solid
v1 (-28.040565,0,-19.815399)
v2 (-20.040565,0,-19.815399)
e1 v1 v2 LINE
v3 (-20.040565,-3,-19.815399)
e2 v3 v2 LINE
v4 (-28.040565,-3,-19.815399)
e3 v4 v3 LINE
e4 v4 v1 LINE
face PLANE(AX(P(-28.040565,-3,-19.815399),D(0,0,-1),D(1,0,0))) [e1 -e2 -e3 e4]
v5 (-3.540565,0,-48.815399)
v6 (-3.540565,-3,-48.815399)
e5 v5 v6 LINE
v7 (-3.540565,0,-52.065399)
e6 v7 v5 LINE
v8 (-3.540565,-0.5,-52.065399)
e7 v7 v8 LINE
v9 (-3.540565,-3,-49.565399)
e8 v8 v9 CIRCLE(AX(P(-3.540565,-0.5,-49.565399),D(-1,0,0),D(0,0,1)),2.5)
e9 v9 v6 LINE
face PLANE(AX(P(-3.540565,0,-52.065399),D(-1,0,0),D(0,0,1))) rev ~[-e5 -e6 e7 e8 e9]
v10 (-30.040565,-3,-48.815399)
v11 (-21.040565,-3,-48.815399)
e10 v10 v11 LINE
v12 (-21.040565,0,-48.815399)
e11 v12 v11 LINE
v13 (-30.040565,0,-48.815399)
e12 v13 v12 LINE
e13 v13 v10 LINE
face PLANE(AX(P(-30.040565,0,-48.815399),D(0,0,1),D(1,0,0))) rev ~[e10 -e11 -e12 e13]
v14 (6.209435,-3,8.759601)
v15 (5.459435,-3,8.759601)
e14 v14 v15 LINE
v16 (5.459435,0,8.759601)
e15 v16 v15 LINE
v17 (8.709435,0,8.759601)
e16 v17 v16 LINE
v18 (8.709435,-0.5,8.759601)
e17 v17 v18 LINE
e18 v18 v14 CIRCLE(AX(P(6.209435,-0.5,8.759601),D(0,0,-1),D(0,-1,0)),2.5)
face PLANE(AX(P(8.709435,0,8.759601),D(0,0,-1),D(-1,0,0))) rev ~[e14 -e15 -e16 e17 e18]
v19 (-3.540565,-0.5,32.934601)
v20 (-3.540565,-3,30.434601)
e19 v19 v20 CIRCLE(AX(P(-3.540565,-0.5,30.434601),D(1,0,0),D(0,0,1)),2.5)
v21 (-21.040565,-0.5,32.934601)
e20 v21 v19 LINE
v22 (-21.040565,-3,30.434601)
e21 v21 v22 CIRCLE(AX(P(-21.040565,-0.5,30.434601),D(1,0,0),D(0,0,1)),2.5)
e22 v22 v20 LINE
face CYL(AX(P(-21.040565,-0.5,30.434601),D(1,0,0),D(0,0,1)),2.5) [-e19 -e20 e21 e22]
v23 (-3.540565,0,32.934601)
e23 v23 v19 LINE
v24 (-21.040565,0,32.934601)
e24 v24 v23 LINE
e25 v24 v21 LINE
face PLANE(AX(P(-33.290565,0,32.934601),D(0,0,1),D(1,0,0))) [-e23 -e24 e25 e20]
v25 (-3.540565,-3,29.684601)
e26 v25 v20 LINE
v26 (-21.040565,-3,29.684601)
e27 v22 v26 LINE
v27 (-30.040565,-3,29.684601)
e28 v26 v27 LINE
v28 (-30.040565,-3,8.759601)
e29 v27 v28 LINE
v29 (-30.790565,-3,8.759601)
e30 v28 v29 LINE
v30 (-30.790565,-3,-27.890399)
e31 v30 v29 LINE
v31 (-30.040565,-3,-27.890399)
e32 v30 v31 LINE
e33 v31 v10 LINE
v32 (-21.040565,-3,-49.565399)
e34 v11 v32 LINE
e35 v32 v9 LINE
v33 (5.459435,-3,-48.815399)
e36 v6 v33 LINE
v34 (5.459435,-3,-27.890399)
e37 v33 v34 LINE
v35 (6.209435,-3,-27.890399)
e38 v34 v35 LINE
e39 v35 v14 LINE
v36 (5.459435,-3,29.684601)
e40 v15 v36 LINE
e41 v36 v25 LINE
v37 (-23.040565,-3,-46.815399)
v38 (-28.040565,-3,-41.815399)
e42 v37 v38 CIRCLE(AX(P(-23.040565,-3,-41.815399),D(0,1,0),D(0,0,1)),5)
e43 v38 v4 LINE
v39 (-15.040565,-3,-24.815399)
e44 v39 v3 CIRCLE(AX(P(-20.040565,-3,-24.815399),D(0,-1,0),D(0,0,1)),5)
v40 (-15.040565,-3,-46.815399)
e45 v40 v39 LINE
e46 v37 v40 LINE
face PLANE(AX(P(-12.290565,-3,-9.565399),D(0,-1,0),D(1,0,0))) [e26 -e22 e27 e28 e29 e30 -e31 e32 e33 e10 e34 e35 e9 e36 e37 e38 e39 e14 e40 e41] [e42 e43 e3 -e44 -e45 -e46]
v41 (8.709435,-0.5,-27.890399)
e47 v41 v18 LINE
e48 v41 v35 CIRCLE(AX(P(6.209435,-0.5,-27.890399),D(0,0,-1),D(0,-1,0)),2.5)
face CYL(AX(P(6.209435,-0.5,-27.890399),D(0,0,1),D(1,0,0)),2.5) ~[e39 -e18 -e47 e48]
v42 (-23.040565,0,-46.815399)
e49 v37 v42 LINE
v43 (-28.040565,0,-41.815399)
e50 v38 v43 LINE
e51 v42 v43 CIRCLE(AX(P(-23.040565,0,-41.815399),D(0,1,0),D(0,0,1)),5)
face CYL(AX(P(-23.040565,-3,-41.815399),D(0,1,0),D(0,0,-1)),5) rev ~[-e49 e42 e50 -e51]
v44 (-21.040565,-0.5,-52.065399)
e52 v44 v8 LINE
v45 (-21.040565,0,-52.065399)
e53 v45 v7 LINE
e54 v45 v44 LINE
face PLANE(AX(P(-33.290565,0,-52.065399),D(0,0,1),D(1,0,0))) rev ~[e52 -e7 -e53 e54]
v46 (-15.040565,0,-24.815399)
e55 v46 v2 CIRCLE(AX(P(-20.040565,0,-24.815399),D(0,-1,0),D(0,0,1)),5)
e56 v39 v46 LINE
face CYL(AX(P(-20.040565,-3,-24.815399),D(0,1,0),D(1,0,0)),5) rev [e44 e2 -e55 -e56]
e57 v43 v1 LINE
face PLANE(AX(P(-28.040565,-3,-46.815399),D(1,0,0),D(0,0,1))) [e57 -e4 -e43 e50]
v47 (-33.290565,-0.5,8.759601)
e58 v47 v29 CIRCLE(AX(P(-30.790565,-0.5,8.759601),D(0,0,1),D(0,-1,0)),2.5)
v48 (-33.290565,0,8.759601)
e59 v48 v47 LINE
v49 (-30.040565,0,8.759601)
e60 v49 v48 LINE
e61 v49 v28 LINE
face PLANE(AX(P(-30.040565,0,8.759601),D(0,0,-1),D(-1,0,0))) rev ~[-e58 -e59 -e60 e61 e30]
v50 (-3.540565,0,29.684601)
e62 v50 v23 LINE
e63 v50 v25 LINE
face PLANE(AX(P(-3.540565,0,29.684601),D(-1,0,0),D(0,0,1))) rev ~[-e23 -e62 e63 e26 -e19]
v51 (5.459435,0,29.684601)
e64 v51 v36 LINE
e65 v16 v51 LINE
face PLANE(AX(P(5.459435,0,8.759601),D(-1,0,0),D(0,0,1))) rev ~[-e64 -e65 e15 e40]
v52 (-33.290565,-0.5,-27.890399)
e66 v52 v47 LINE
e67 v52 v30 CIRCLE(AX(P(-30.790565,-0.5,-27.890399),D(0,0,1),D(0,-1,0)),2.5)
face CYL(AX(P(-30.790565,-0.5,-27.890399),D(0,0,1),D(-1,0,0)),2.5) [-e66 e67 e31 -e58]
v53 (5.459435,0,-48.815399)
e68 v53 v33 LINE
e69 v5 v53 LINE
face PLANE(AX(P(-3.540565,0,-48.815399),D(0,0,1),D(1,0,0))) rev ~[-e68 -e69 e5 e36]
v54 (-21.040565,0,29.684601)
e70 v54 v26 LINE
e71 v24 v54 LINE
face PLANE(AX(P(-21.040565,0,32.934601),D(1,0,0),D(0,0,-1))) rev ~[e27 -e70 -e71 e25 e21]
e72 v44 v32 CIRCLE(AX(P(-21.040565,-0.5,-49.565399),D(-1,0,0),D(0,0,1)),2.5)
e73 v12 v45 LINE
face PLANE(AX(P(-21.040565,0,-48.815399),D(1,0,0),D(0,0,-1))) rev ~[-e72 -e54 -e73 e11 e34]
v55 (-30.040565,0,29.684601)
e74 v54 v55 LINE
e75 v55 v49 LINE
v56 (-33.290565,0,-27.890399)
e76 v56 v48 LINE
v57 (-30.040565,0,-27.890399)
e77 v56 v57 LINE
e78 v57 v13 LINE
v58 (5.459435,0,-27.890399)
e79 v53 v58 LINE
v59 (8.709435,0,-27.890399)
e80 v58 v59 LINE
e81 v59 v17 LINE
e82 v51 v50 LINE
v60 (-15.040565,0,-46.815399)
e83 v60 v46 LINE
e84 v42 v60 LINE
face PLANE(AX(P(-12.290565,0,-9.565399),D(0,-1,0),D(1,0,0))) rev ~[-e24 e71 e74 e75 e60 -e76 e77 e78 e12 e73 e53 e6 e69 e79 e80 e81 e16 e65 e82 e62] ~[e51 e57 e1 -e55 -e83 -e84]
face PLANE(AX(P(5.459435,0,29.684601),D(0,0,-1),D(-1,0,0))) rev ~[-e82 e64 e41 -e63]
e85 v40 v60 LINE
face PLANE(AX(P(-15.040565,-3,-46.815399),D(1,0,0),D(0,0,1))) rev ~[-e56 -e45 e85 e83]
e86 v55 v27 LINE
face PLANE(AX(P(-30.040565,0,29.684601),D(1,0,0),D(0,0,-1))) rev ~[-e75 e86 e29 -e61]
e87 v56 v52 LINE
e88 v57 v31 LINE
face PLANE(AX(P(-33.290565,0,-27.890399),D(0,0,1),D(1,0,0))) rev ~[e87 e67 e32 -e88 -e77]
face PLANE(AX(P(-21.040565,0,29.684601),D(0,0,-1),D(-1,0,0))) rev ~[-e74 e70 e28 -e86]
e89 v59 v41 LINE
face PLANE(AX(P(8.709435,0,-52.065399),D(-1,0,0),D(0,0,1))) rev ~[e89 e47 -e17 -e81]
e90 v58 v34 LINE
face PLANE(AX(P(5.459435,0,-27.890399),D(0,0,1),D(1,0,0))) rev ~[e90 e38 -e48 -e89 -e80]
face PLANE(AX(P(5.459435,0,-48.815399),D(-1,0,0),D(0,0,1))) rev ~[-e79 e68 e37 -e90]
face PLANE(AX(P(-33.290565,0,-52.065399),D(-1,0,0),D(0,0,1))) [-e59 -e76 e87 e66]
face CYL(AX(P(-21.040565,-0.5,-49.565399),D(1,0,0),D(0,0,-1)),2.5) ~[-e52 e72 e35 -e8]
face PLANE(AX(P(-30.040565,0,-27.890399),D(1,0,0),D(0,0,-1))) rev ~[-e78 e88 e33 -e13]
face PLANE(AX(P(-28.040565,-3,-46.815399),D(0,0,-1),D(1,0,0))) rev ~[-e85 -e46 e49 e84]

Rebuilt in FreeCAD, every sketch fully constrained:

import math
import FreeCAD as App
import Part
import Sketcher


def edges_at(feature, points):
    """Names of the edges that pass closest to the given points."""
    edges = feature.Shape.Edges
    near = lambda p: min(range(len(edges)), key=lambda i: edges[i].distToShape(Part.Vertex(*p))[0])
    return sorted({f"Edge{near(p) + 1}" for p in points})

doc = App.newDocument("Part")
body = doc.addObject("PartDesign::Body", "Body")

sketch1 = body.newObject("Sketcher::SketchObject", "Sketch")
sketch1.AttachmentSupport = (doc.getObject("XZ_Plane"), [""])
sketch1.MapMode = "FlatFace"
sketch1.addGeometry([
    Part.LineSegment(App.Vector(-33, 33, 0), App.Vector(-33, -52, 0)),
    Part.LineSegment(App.Vector(-33, -52, 0), App.Vector(9, -52, 0)),
    Part.LineSegment(App.Vector(9, -52, 0), App.Vector(9, 33, 0)),
    Part.LineSegment(App.Vector(9, 33, 0), App.Vector(-33, 33, 0)),
], False)
sketch1.addConstraint([
    Sketcher.Constraint("Coincident", 0, 2, 1, 1),
    Sketcher.Constraint("Coincident", 1, 2, 2, 1),
    Sketcher.Constraint("Coincident", 2, 2, 3, 1),
    Sketcher.Constraint("Coincident", 3, 2, 0, 1),
    Sketcher.Constraint("Vertical", 0),
    Sketcher.Constraint("Horizontal", 1),
    Sketcher.Constraint("Vertical", 2),
    Sketcher.Constraint("Horizontal", 3),
    Sketcher.Constraint("DistanceX", 1, 1, 1, 2, 42.0),
    Sketcher.Constraint("DistanceY", 0, 2, 0, 1, 85.0),
    Sketcher.Constraint("DistanceY", 0, 2, -1, 1, 52.065399),
    Sketcher.Constraint("DistanceX", 0, 2, -1, 1, 33.290565),
])
pad1 = body.newObject("PartDesign::Pad", "Pad")
pad1.Profile = sketch1
pad1.Length = 3
doc.recompute()

fillet = body.newObject("PartDesign::Fillet", "Fillet")
fillet.Base = (pad1, edges_at(pad1, [
    (-33.291, -1.5, 32.935),
    (8.709, -1.5, 32.935),
    (8.709, -1.5, -52.065),
    (-33.291, -1.5, -52.065),
]))
fillet.Radius = 3

sketch2 = body.newObject("Sketcher::SketchObject", "Sketch001")
sketch2.AttachmentSupport = (doc.getObject("XZ_Plane"), [""])
sketch2.MapMode = "FlatFace"
sketch2.addGeometry([
    Part.LineSegment(App.Vector(5.5, 8.8, 0), App.Vector(5.5, 29.7, 0)),
    Part.LineSegment(App.Vector(5.5, 29.7, 0), App.Vector(-3.5, 29.7, 0)),
    Part.LineSegment(App.Vector(-3.5, 29.7, 0), App.Vector(-3.5, 32.9, 0)),
    Part.LineSegment(App.Vector(-3.5, 32.9, 0), App.Vector(5.7, 32.9, 0)),
    Part.ArcOfCircle(Part.Circle(App.Vector(5.7, 29.9, 0), App.Vector(0, 0, 1), 3), math.radians(0), math.radians(90)),
    Part.LineSegment(App.Vector(8.7, 29.9, 0), App.Vector(8.7, 8.8, 0)),
    Part.LineSegment(App.Vector(8.7, 8.8, 0), App.Vector(5.5, 8.8, 0)),
    Part.LineSegment(App.Vector(-21, 32.9, 0), App.Vector(-21, 29.7, 0)),
    Part.LineSegment(App.Vector(-21, 29.7, 0), App.Vector(-30, 29.7, 0)),
    Part.LineSegment(App.Vector(-30, 29.7, 0), App.Vector(-30, 8.8, 0)),
    Part.LineSegment(App.Vector(-30, 8.8, 0), App.Vector(-33.3, 8.8, 0)),
    Part.LineSegment(App.Vector(-33.3, 8.8, 0), App.Vector(-33.3, 29.9, 0)),
    Part.ArcOfCircle(Part.Circle(App.Vector(-30.3, 29.9, 0), App.Vector(0, 0, 1), 3), math.radians(90), math.radians(180)),
    Part.LineSegment(App.Vector(-30.3, 32.9, 0), App.Vector(-21, 32.9, 0)),
    Part.LineSegment(App.Vector(-33.3, -27.9, 0), App.Vector(-30, -27.9, 0)),
    Part.LineSegment(App.Vector(-30, -27.9, 0), App.Vector(-30, -48.8, 0)),
    Part.LineSegment(App.Vector(-30, -48.8, 0), App.Vector(-21, -48.8, 0)),
    Part.LineSegment(App.Vector(-21, -48.8, 0), App.Vector(-21, -52.1, 0)),
    Part.LineSegment(App.Vector(-21, -52.1, 0), App.Vector(-30.3, -52.1, 0)),
    Part.ArcOfCircle(Part.Circle(App.Vector(-30.3, -49.1, 0), App.Vector(0, 0, 1), 3), math.radians(-180), math.radians(-90)),
    Part.LineSegment(App.Vector(-33.3, -49.1, 0), App.Vector(-33.3, -27.9, 0)),
    Part.LineSegment(App.Vector(5.5, -48.8, 0), App.Vector(5.5, -27.9, 0)),
    Part.LineSegment(App.Vector(5.5, -27.9, 0), App.Vector(8.7, -27.9, 0)),
    Part.LineSegment(App.Vector(8.7, -27.9, 0), App.Vector(8.7, -49.1, 0)),
    Part.ArcOfCircle(Part.Circle(App.Vector(5.7, -49.1, 0), App.Vector(0, 0, 1), 3), math.radians(-90), math.radians(0)),
    Part.LineSegment(App.Vector(5.7, -52.1, 0), App.Vector(-3.5, -52.1, 0)),
    Part.LineSegment(App.Vector(-3.5, -52.1, 0), App.Vector(-3.5, -48.8, 0)),
    Part.LineSegment(App.Vector(-3.5, -48.8, 0), App.Vector(5.5, -48.8, 0)),
], False)
sketch2.addConstraint([
    Sketcher.Constraint("Coincident", 0, 2, 1, 1),
    Sketcher.Constraint("Coincident", 1, 2, 2, 1),
    Sketcher.Constraint("Coincident", 2, 2, 3, 1),
    Sketcher.Constraint("Tangent", 3, 2, 4, 2),
    Sketcher.Constraint("Tangent", 4, 1, 5, 1),
    Sketcher.Constraint("Coincident", 5, 2, 6, 1),
    Sketcher.Constraint("Coincident", 6, 2, 0, 1),
    Sketcher.Constraint("Coincident", 7, 2, 8, 1),
    Sketcher.Constraint("Coincident", 8, 2, 9, 1),
    Sketcher.Constraint("Coincident", 9, 2, 10, 1),
    Sketcher.Constraint("Coincident", 10, 2, 11, 1),
    Sketcher.Constraint("Tangent", 11, 2, 12, 2),
    Sketcher.Constraint("Tangent", 12, 1, 13, 1),
    Sketcher.Constraint("Coincident", 13, 2, 7, 1),
    Sketcher.Constraint("Coincident", 14, 2, 15, 1),
    Sketcher.Constraint("Coincident", 15, 2, 16, 1),
    Sketcher.Constraint("Coincident", 16, 2, 17, 1),
    Sketcher.Constraint("Coincident", 17, 2, 18, 1),
    Sketcher.Constraint("Tangent", 18, 2, 19, 2),
    Sketcher.Constraint("Tangent", 19, 1, 20, 1),
    Sketcher.Constraint("Coincident", 20, 2, 14, 1),
    Sketcher.Constraint("Coincident", 21, 2, 22, 1),
    Sketcher.Constraint("Coincident", 22, 2, 23, 1),
    Sketcher.Constraint("Tangent", 23, 2, 24, 2),
    Sketcher.Constraint("Tangent", 24, 1, 25, 1),
    Sketcher.Constraint("Coincident", 25, 2, 26, 1),
    Sketcher.Constraint("Coincident", 26, 2, 27, 1),
    Sketcher.Constraint("Coincident", 27, 2, 21, 1),
    Sketcher.Constraint("Vertical", 0),
    Sketcher.Constraint("Horizontal", 1),
    Sketcher.Constraint("Vertical", 2),
    Sketcher.Constraint("Horizontal", 3),
    Sketcher.Constraint("Vertical", 5),
    Sketcher.Constraint("Horizontal", 6),
    Sketcher.Constraint("Vertical", 7),
    Sketcher.Constraint("Horizontal", 8),
    Sketcher.Constraint("Vertical", 9),
    Sketcher.Constraint("Horizontal", 10),
    Sketcher.Constraint("Vertical", 11),
    Sketcher.Constraint("Horizontal", 13),
    Sketcher.Constraint("Horizontal", 14),
    Sketcher.Constraint("Vertical", 15),
    Sketcher.Constraint("Horizontal", 16),
    Sketcher.Constraint("Vertical", 17),
    Sketcher.Constraint("Horizontal", 18),
    Sketcher.Constraint("Vertical", 20),
    Sketcher.Constraint("Vertical", 21),
    Sketcher.Constraint("Horizontal", 22),
    Sketcher.Constraint("Vertical", 23),
    Sketcher.Constraint("Horizontal", 25),
    Sketcher.Constraint("Vertical", 26),
    Sketcher.Constraint("Horizontal", 27),
    Sketcher.Constraint("Equal", 4, 12),
    Sketcher.Constraint("Equal", 12, 19),
    Sketcher.Constraint("Equal", 19, 24),
    Sketcher.Constraint("Horizontal", 4, 3, 12, 3),
    Sketcher.Constraint("Horizontal", 19, 3, 24, 3),
    Sketcher.Constraint("Horizontal", 1, 2, 7, 2),
    Sketcher.Constraint("Horizontal", 6, 2, 9, 2),
    Sketcher.Constraint("Horizontal", 20, 2, 21, 2),
    Sketcher.Constraint("Horizontal", 16, 2, 26, 2),
    Sketcher.Constraint("Vertical", 12, 3, 19, 3),
    Sketcher.Constraint("Vertical", 4, 3, 24, 3),
    Sketcher.Constraint("Vertical", 9, 2, 14, 2),
    Sketcher.Constraint("Vertical", 13, 2, 16, 2),
    Sketcher.Constraint("Vertical", 6, 2, 21, 2),
    Sketcher.Constraint("Vertical", 2, 2, 25, 2),
    Sketcher.Constraint("Equal", 1, 8),
    Sketcher.Constraint("Equal", 6, 10),
    Sketcher.Constraint("Equal", 22, 2),
    Sketcher.Constraint("Equal", 9, 15),
    Sketcher.Constraint("Equal", 7, 17),
    Sketcher.Constraint("Radius", 4, 2.999999),
    Sketcher.Constraint("DistanceX", 1, 2, 1, 1, 9.0),
    Sketcher.Constraint("DistanceX", 12, 3, 4, 3, 36.000001),
    Sketcher.Constraint("DistanceY", 19, 3, 12, 3, 78.999999),
    Sketcher.Constraint("DistanceX", 3, 1, 3, 2, 9.25),
    Sketcher.Constraint("DistanceY", 0, 1, 0, 2, 20.925),
    Sketcher.Constraint("DistanceY", -1, 1, 4, 3, 29.934602),
    Sketcher.Constraint("DistanceX", -1, 1, 4, 3, 5.709436),
])
pocket1 = body.newObject("PartDesign::Pocket", "Pocket")
pocket1.Profile = sketch2
pocket1.Type = "ThroughAll"
pocket1.Reversed = True

sketch3 = body.newObject("Sketcher::SketchObject", "Sketch002")
sketch3.AttachmentSupport = (doc.getObject("XZ_Plane"), [""])
sketch3.MapMode = "FlatFace"
sketch3.AttachmentOffset = App.Placement(App.Vector(0, 0, 3), App.Rotation())
sketch3.addGeometry([
    Part.LineSegment(App.Vector(-28, -20, 0), App.Vector(-28, -47, 0)),
    Part.LineSegment(App.Vector(-28, -47, 0), App.Vector(-15, -47, 0)),
    Part.LineSegment(App.Vector(-15, -47, 0), App.Vector(-15, -20, 0)),
    Part.LineSegment(App.Vector(-15, -20, 0), App.Vector(-28, -20, 0)),
], False)
sketch3.addConstraint([
    Sketcher.Constraint("Coincident", 0, 2, 1, 1),
    Sketcher.Constraint("Coincident", 1, 2, 2, 1),
    Sketcher.Constraint("Coincident", 2, 2, 3, 1),
    Sketcher.Constraint("Coincident", 3, 2, 0, 1),
    Sketcher.Constraint("Vertical", 0),
    Sketcher.Constraint("Horizontal", 1),
    Sketcher.Constraint("Vertical", 2),
    Sketcher.Constraint("Horizontal", 3),
    Sketcher.Constraint("DistanceX", 1, 1, 1, 2, 13.0),
    Sketcher.Constraint("DistanceY", 0, 2, 0, 1, 27.0),
    Sketcher.Constraint("DistanceY", 0, 2, -1, 1, 46.815399),
    Sketcher.Constraint("DistanceX", 0, 2, -1, 1, 28.040565),
])
pocket2 = body.newObject("PartDesign::Pocket", "Pocket001")
pocket2.Profile = sketch3
pocket2.Type = "ThroughAll"
doc.recompute()

fillet2 = body.newObject("PartDesign::Fillet", "Fillet001")
fillet2.Base = (pocket2, edges_at(pocket2, [(-15.041, -1.5, -19.815), (-28.041, -1.5, -46.815)]))
fillet2.Radius = 5
doc.recompute()

fillet3 = body.newObject("PartDesign::Fillet", "Fillet002")
fillet3.Base = (fillet2, edges_at(fillet2, [
    (-12.291, -3, 32.935),
    (8.709, -3, -9.565),
    (-12.291, -3, -52.065),
    (-33.291, -3, -9.565),
]))
fillet3.Radius = 2.5

doc.recompute()
